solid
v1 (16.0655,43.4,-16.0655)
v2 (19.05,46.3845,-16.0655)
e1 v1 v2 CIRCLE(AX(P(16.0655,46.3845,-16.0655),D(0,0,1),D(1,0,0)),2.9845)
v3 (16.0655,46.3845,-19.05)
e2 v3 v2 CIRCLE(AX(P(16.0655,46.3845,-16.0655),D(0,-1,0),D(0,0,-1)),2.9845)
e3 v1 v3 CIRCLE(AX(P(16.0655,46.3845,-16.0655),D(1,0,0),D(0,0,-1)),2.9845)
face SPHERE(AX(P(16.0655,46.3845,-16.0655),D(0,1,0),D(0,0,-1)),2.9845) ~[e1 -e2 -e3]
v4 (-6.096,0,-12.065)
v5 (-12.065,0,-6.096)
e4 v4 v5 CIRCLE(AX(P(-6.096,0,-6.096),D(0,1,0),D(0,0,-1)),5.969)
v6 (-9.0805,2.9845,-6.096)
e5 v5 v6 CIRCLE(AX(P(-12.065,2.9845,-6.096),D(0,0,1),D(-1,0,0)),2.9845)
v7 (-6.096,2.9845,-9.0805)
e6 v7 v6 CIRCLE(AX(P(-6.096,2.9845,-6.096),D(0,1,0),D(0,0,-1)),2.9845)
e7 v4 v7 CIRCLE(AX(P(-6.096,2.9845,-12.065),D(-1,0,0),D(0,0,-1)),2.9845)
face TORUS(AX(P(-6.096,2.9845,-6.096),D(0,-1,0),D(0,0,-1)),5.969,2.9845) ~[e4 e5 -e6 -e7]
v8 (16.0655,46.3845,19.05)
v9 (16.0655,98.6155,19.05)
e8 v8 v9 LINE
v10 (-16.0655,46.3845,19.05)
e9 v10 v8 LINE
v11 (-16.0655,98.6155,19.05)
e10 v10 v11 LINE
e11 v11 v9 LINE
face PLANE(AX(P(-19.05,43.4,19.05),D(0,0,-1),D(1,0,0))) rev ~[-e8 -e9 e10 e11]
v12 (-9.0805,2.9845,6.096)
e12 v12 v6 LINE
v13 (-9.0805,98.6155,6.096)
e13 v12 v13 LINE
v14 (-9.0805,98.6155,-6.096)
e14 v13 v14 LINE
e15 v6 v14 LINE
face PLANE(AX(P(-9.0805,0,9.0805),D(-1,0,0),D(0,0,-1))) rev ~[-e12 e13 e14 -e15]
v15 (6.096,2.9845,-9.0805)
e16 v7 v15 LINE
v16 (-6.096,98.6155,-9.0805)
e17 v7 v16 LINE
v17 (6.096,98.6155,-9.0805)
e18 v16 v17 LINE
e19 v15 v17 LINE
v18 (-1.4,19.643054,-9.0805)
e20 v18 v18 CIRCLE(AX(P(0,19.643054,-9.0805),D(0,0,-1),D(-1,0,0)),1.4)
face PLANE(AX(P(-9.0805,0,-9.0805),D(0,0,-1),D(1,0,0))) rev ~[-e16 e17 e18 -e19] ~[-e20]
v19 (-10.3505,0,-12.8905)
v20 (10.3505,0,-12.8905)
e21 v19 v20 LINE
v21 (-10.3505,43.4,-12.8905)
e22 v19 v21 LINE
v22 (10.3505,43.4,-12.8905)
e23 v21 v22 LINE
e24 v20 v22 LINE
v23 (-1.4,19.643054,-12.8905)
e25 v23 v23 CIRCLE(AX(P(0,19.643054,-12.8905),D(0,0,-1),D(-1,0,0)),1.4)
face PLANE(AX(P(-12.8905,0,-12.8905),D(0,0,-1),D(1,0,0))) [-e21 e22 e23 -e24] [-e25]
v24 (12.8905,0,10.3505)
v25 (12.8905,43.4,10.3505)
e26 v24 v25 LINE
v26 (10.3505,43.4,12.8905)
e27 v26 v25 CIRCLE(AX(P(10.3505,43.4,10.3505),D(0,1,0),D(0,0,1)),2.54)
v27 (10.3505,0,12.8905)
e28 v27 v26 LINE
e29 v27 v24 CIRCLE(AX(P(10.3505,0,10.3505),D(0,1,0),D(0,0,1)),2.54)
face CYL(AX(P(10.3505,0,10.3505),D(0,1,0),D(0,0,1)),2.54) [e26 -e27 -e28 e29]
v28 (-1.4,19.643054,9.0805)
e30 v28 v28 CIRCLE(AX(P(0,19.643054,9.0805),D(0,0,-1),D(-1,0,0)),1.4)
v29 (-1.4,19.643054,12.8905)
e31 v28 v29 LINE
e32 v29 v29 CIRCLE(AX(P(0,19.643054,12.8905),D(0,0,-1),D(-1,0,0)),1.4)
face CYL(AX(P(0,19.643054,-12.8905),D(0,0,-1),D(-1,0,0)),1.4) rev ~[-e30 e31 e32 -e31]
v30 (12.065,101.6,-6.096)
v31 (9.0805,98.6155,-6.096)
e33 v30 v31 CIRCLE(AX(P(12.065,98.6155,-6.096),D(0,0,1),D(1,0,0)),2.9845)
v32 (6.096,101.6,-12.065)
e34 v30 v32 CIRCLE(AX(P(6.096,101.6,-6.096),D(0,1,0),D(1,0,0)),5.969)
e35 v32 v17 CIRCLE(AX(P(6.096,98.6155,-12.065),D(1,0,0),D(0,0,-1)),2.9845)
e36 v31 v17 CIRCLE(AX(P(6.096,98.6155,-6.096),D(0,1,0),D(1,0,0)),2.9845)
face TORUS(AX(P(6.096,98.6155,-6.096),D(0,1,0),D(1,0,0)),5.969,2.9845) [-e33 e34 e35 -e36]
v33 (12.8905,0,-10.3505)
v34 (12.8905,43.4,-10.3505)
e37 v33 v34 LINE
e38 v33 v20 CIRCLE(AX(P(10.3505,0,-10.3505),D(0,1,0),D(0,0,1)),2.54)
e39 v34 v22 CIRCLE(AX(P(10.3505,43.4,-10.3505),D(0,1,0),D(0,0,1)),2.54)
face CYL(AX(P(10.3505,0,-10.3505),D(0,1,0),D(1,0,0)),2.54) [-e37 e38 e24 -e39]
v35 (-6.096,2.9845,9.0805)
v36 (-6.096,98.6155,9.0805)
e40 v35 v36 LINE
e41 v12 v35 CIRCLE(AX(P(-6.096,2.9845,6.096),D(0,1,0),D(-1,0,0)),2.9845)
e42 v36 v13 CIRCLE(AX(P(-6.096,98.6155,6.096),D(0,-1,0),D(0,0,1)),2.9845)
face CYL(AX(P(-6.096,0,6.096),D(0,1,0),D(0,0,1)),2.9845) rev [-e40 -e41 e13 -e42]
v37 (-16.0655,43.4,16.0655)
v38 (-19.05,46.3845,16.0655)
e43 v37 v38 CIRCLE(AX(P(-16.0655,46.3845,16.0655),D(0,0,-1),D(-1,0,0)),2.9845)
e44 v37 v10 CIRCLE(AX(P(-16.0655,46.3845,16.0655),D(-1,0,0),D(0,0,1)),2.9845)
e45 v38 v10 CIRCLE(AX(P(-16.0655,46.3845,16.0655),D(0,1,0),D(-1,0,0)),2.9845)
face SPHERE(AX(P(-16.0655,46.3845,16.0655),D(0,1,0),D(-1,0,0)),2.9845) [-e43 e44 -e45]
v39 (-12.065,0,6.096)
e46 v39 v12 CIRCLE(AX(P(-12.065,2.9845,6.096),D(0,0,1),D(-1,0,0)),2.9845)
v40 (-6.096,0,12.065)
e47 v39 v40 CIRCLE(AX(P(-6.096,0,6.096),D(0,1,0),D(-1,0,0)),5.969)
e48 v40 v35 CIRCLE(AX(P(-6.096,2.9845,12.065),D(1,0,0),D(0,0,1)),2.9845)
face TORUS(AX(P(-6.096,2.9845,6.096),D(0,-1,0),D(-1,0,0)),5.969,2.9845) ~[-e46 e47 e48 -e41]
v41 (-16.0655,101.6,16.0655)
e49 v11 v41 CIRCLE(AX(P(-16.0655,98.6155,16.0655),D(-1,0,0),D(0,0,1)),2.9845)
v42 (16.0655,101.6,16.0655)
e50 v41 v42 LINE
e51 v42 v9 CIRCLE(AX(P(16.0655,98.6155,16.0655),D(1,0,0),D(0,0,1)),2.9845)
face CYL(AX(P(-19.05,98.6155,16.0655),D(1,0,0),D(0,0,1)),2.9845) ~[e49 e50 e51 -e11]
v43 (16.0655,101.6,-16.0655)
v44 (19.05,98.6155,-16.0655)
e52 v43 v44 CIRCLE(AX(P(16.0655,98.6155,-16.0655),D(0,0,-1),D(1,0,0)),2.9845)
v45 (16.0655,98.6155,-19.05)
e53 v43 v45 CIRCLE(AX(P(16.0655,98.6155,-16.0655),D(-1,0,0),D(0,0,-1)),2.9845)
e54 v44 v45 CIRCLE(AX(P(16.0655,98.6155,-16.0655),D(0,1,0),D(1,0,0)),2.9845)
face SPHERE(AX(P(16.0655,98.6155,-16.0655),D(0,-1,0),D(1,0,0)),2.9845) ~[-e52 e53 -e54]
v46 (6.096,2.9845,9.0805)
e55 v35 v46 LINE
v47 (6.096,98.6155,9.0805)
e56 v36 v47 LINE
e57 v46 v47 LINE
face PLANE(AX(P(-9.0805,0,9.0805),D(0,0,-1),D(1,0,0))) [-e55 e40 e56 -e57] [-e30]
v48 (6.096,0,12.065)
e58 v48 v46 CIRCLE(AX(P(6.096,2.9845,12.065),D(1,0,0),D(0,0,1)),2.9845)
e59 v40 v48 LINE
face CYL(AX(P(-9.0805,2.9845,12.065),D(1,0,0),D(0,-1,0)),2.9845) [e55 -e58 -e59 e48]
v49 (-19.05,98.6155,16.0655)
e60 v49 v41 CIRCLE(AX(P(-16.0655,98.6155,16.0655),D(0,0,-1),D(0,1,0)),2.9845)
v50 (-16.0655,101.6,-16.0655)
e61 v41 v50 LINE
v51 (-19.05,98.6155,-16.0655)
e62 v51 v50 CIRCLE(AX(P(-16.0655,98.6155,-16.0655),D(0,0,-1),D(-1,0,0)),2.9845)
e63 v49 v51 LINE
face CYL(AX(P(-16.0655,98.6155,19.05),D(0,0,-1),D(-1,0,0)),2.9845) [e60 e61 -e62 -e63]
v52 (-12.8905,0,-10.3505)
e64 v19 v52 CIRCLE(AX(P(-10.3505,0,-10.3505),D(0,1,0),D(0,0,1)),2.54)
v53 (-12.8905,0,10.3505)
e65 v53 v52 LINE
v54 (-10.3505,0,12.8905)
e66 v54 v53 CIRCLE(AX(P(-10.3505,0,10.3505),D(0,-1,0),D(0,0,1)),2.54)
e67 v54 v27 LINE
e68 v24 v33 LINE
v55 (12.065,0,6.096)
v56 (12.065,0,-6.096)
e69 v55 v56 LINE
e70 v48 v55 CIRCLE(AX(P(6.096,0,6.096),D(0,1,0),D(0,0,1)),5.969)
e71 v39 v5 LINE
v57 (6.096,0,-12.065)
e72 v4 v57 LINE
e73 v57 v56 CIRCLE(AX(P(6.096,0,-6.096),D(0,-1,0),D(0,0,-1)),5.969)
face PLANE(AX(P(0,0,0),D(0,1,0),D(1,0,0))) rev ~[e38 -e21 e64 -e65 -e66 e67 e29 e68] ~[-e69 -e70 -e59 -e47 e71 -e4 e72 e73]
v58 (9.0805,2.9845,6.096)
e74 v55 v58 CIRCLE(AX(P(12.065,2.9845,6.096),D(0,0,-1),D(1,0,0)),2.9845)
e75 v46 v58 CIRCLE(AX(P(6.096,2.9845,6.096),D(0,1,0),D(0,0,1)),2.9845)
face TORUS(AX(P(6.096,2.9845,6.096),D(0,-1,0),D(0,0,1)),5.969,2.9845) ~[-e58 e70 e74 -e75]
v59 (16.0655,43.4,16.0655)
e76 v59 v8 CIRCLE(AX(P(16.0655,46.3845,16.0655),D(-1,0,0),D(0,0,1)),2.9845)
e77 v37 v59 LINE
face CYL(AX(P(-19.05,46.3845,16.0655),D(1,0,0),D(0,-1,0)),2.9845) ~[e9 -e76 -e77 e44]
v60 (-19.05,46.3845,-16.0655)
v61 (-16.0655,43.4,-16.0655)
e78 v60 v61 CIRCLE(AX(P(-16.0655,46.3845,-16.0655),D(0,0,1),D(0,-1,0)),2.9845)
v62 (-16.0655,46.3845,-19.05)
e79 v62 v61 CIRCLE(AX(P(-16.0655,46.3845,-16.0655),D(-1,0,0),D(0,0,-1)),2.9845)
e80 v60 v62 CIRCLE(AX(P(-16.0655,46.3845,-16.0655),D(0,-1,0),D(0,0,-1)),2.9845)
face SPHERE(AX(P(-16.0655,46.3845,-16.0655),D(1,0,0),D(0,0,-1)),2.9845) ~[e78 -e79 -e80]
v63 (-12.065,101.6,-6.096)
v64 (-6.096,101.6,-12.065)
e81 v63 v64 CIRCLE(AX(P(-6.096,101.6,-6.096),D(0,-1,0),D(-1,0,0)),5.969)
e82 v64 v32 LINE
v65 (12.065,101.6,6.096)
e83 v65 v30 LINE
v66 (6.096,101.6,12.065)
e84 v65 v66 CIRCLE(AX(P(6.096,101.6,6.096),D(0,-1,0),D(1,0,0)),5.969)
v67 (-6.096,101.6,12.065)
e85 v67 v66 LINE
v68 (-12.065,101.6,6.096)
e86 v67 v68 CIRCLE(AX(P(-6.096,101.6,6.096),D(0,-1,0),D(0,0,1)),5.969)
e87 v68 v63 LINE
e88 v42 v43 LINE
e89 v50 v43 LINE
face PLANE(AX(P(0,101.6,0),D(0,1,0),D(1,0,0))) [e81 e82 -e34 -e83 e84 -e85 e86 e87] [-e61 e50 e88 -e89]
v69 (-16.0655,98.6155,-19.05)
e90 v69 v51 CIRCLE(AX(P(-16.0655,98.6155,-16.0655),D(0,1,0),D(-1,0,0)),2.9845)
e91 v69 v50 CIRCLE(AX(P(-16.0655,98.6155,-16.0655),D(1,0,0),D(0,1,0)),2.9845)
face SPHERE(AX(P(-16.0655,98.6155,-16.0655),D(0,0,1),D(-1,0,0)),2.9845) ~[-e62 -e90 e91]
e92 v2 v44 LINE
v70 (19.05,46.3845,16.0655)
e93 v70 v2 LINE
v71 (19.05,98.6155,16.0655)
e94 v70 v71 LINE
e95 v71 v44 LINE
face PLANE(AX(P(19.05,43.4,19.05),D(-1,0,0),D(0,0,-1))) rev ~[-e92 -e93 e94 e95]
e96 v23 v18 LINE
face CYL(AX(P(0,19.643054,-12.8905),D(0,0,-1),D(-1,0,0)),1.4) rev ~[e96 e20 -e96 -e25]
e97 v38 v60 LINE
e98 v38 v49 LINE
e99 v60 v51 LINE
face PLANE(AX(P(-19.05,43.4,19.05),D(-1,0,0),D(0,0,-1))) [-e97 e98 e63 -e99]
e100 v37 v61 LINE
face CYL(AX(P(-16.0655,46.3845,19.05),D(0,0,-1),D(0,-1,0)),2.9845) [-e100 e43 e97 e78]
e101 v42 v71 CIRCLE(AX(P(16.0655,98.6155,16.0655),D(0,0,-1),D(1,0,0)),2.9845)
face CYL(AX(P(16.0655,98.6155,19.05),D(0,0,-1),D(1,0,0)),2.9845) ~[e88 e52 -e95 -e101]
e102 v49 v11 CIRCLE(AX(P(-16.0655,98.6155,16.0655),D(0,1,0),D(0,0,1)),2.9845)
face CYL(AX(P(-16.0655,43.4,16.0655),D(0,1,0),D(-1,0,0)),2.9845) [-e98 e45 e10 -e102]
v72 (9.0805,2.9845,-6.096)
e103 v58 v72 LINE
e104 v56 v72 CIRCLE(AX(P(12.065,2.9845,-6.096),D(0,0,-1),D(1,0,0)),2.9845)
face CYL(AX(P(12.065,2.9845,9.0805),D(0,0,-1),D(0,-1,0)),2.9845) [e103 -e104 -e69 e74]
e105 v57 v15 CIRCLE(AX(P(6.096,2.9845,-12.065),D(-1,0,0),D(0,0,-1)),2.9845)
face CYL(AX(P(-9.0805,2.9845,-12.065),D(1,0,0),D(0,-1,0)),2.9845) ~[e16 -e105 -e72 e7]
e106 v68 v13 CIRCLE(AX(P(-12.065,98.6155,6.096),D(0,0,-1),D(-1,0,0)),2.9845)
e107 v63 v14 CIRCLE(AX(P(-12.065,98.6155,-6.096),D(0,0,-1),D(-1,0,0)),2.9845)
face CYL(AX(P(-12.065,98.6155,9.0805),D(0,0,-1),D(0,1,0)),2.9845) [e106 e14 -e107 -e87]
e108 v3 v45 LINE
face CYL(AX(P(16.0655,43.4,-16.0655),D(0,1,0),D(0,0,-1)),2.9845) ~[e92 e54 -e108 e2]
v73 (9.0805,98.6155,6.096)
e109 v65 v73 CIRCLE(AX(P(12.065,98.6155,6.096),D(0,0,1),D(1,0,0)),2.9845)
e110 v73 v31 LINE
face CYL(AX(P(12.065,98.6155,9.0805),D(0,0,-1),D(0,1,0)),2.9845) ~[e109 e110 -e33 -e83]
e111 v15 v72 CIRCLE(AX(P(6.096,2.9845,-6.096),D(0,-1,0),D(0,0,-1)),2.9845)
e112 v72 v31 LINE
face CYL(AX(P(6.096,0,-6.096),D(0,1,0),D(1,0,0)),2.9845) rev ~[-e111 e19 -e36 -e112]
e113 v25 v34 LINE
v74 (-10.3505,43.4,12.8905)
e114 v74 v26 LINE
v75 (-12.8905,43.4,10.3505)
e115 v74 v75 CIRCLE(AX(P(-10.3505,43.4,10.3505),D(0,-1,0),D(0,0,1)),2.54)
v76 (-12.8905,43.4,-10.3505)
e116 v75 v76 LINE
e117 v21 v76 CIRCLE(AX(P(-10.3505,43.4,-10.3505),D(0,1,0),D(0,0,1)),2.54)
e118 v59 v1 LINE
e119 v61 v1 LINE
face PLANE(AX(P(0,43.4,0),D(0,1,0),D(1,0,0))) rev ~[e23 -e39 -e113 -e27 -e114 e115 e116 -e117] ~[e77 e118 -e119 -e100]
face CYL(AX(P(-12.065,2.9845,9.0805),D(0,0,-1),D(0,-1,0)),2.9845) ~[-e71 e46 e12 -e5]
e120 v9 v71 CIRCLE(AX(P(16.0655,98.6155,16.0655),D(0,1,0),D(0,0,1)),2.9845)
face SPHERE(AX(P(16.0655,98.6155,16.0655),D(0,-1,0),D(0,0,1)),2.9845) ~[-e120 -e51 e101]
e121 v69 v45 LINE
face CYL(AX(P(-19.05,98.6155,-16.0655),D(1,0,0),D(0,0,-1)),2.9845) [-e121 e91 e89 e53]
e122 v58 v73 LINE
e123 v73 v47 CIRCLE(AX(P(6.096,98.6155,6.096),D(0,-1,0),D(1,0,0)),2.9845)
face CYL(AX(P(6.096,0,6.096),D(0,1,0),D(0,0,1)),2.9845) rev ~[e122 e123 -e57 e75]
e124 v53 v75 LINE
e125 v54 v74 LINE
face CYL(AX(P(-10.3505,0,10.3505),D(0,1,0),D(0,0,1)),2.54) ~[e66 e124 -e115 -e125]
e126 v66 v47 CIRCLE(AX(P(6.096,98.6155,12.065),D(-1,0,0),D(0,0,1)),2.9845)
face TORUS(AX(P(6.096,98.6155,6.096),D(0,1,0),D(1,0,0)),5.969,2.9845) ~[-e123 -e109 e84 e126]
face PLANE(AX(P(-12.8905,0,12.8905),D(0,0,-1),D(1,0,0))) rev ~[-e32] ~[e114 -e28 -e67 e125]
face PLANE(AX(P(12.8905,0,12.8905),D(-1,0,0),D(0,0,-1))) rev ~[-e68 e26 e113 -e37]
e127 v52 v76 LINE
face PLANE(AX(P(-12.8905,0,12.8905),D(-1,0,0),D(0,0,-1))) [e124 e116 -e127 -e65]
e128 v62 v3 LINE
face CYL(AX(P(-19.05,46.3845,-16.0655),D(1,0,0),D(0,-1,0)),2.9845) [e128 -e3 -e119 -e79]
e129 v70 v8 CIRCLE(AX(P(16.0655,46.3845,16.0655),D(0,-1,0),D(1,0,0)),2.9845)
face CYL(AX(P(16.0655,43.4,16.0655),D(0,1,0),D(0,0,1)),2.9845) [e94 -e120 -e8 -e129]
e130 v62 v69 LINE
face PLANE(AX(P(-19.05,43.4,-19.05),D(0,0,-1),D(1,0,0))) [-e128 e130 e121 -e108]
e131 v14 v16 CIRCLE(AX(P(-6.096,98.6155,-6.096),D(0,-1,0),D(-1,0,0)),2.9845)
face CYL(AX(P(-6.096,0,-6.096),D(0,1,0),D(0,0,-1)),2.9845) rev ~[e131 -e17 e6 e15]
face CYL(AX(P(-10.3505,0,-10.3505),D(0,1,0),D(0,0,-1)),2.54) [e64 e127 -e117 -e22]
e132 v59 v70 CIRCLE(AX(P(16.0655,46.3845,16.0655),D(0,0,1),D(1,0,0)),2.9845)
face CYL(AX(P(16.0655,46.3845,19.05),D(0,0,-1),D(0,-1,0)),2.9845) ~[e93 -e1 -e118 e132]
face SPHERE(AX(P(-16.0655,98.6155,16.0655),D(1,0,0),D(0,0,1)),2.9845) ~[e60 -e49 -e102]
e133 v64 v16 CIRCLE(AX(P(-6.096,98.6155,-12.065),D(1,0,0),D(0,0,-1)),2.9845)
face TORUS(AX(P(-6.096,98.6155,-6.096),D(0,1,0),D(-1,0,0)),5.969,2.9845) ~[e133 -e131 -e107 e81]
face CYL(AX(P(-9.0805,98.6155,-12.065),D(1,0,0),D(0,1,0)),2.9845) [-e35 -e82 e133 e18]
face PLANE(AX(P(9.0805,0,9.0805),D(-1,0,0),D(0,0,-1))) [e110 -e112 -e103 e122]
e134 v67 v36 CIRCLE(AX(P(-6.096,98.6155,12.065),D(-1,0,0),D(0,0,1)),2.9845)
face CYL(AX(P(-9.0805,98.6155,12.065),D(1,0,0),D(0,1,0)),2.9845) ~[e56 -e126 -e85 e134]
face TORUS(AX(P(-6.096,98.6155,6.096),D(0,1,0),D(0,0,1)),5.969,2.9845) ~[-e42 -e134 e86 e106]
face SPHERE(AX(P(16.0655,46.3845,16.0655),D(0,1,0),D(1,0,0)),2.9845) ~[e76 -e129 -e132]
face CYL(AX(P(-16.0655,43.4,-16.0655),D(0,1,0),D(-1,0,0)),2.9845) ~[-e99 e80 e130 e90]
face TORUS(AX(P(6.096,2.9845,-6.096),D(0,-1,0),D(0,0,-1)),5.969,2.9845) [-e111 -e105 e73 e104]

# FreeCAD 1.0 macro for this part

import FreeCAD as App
import Part
import Sketcher
Q = App.Units.Quantity


def edges_at(feature, points):
    """Names of the edges that pass closest to the given points."""
    edges = feature.Shape.Edges
    near = lambda p: min(range(len(edges)), key=lambda i: edges[i].distToShape(Part.Vertex(*p))[0])
    return sorted({f"Edge{near(p) + 1}" for p in points})

doc = App.newDocument("Part")
body = doc.addObject("PartDesign::Body", "Body")

# Sketch on XZ plane
sketch1 = doc.addObject("Sketcher::SketchObject", "Sketch")
body.addObject(sketch1)
sketch1.AttachmentSupport = (doc.XZ_Plane, [""])
sketch1.MapMode = "FlatFace"
sketch1.addGeometry(Part.LineSegment(App.Vector(-13, -13, 0), App.Vector(-13, 13, 0)), False)
sketch1.addGeometry(Part.LineSegment(App.Vector(-13, 13, 0), App.Vector(13, 13, 0)), False)
sketch1.addGeometry(Part.LineSegment(App.Vector(13, 13, 0), App.Vector(13, -13, 0)), False)
sketch1.addGeometry(Part.LineSegment(App.Vector(13, -13, 0), App.Vector(-13, -13, 0)), False)
sketch1.addGeometry(Part.LineSegment(App.Vector(9, 9, 0), App.Vector(-9, 9, 0)), False)
sketch1.addGeometry(Part.LineSegment(App.Vector(-9, 9, 0), App.Vector(-9, -9, 0)), False)
sketch1.addGeometry(Part.LineSegment(App.Vector(-9, -9, 0), App.Vector(9, -9, 0)), False)
sketch1.addGeometry(Part.LineSegment(App.Vector(9, -9, 0), App.Vector(9, 9, 0)), False)
sketch1.addConstraint(Sketcher.Constraint("Coincident", 0, 2, 1, 1))
sketch1.addConstraint(Sketcher.Constraint("Coincident", 1, 2, 2, 1))
sketch1.addConstraint(Sketcher.Constraint("Coincident", 2, 2, 3, 1))
sketch1.addConstraint(Sketcher.Constraint("Coincident", 3, 2, 0, 1))
sketch1.addConstraint(Sketcher.Constraint("Coincident", 4, 2, 5, 1))
sketch1.addConstraint(Sketcher.Constraint("Coincident", 5, 2, 6, 1))
sketch1.addConstraint(Sketcher.Constraint("Coincident", 6, 2, 7, 1))
sketch1.addConstraint(Sketcher.Constraint("Coincident", 7, 2, 4, 1))
sketch1.addConstraint(Sketcher.Constraint("Vertical", 0))
sketch1.addConstraint(Sketcher.Constraint("Horizontal", 1))
sketch1.addConstraint(Sketcher.Constraint("Vertical", 2))
sketch1.addConstraint(Sketcher.Constraint("Horizontal", 3))
sketch1.addConstraint(Sketcher.Constraint("Horizontal", 4))
sketch1.addConstraint(Sketcher.Constraint("Vertical", 5))
sketch1.addConstraint(Sketcher.Constraint("Horizontal", 6))
sketch1.addConstraint(Sketcher.Constraint("Vertical", 7))
sketch1.addConstraint(Sketcher.Constraint("Symmetric", 0, 2, 2, 2, -1, 1))
sketch1.addConstraint(Sketcher.Constraint("Symmetric", 4, 2, 6, 2, -1, 1))
sketch1.addConstraint(Sketcher.Constraint("Equal", 3, 0))
sketch1.addConstraint(Sketcher.Constraint("Equal", 6, 5))
sketch1.addConstraint(Sketcher.Constraint("DistanceX", 1, 1, 1, 2, Q("1.015 in")))
sketch1.addConstraint(Sketcher.Constraint("DistanceX", 4, 2, 4, 1, Q("0.715 in")))
pad1 = doc.addObject("PartDesign::Pad", "Pad")
body.addObject(pad1)
pad1.Profile = sketch1
pad1.Length = Q("4 in")
pad1.Reversed = True

# Sketch on XZ plane
sketch2 = doc.addObject("Sketcher::SketchObject", "Sketch001")
body.addObject(sketch2)
sketch2.AttachmentSupport = (doc.XZ_Plane, [""])
sketch2.MapMode = "FlatFace"
sketch2.AttachmentOffset = App.Placement(App.Vector(0, 0, -43.4), App.Rotation())
sketch2.addGeometry(Part.LineSegment(App.Vector(-19, -19, 0), App.Vector(-19, 19, 0)), False)
sketch2.addGeometry(Part.LineSegment(App.Vector(-19, 19, 0), App.Vector(19, 19, 0)), False)
sketch2.addGeometry(Part.LineSegment(App.Vector(19, 19, 0), App.Vector(19, -19, 0)), False)
sketch2.addGeometry(Part.LineSegment(App.Vector(19, -19, 0), App.Vector(-19, -19, 0)), False)
sketch2.addGeometry(Part.LineSegment(App.Vector(13, 13, 0), App.Vector(-13, 13, 0)), False)
sketch2.addGeometry(Part.LineSegment(App.Vector(-13, 13, 0), App.Vector(-13, -13, 0)), False)
sketch2.addGeometry(Part.LineSegment(App.Vector(-13, -13, 0), App.Vector(13, -13, 0)), False)
sketch2.addGeometry(Part.LineSegment(App.Vector(13, -13, 0), App.Vector(13, 13, 0)), False)
sketch2.addConstraint(Sketcher.Constraint("Coincident", 0, 2, 1, 1))
sketch2.addConstraint(Sketcher.Constraint("Coincident", 1, 2, 2, 1))
sketch2.addConstraint(Sketcher.Constraint("Coincident", 2, 2, 3, 1))
sketch2.addConstraint(Sketcher.Constraint("Coincident", 3, 2, 0, 1))
sketch2.addConstraint(Sketcher.Constraint("Coincident", 4, 2, 5, 1))
sketch2.addConstraint(Sketcher.Constraint("Coincident", 5, 2, 6, 1))
sketch2.addConstraint(Sketcher.Constraint("Coincident", 6, 2, 7, 1))
sketch2.addConstraint(Sketcher.Constraint("Coincident", 7, 2, 4, 1))
sketch2.addConstraint(Sketcher.Constraint("Vertical", 0))
sketch2.addConstraint(Sketcher.Constraint("Horizontal", 1))
sketch2.addConstraint(Sketcher.Constraint("Vertical", 2))
sketch2.addConstraint(Sketcher.Constraint("Horizontal", 3))
sketch2.addConstraint(Sketcher.Constraint("Horizontal", 4))
sketch2.addConstraint(Sketcher.Constraint("Vertical", 5))
sketch2.addConstraint(Sketcher.Constraint("Horizontal", 6))
sketch2.addConstraint(Sketcher.Constraint("Vertical", 7))
sketch2.addConstraint(Sketcher.Constraint("Symmetric", 0, 2, 2, 2, -1, 1))
sketch2.addConstraint(Sketcher.Constraint("Symmetric", 4, 2, 6, 2, -1, 1))
sketch2.addConstraint(Sketcher.Constraint("Equal", 3, 0))
sketch2.addConstraint(Sketcher.Constraint("Equal", 6, 5))
sketch2.addConstraint(Sketcher.Constraint("DistanceX", 1, 1, 1, 2, Q("1.5 in")))
sketch2.addConstraint(Sketcher.Constraint("DistanceX", 4, 2, 4, 1, Q("1.015 in")))
pad2 = doc.addObject("PartDesign::Pad", "Pad001")
body.addObject(pad2)
pad2.Profile = sketch2
pad2.Length = 58.2
pad2.Reversed = True
doc.recompute()

fillet = doc.addObject("PartDesign::Fillet", "Fillet")
body.addObject(fillet)
fillet.Base = (pad2, edges_at(pad2, [
    (-12.89, 21.7, -12.89),
    (12.89, 21.7, -12.89),
    (12.89, 21.7, 12.89),
    (-12.89, 21.7, 12.89),
]))
fillet.Radius = Q("0.1 in")
doc.recompute()

fillet2 = doc.addObject("PartDesign::Fillet", "Fillet001")
body.addObject(fillet2)
fillet2.Base = (fillet, edges_at(fillet, [
    (0, 0, 9.081),
    (9.081, 0, 0),
    (9.081, 50.8, -9.081),
    (-9.081, 50.8, -9.081),
    (-9.081, 50.8, 9.081),
    (9.081, 50.8, 9.081),
    (9.081, 101.6, 0),
    (0, 101.6, 9.081),
    (19.05, 72.5, -19.05),
    (0, 43.4, -19.05),
    (19.05, 72.5, 19.05),
    (19.05, 43.4, 0),
    (0, 101.6, 19.05),
    (-19.05, 72.5, 19.05),
    (-19.05, 101.6, 0),
    (-19.05, 72.5, -19.05),
    (-9.081, 101.6, 0),
    (-19.05, 43.4, 0),
    (0, 43.4, 19.05),
    (19.05, 101.6, 0),
    (0, 101.6, -19.05),
    (0, 101.6, -9.081),
    (0, 0, -9.081),
    (-9.081, 0, 0),
]))
fillet2.Radius = Q("0.1175 in")

# Sketch on XY plane
sketch3 = doc.addObject("Sketcher::SketchObject", "Sketch002")
body.addObject(sketch3)
sketch3.AttachmentSupport = (doc.XY_Plane, [""])
sketch3.MapMode = "FlatFace"
sketch3.AttachmentOffset = App.Placement(App.Vector(0, 0, -0.5075 * 25.4), App.Rotation())
sketch3.addGeometry(Part.Circle(App.Vector(0, 19.6, 0), App.Vector(0, 0, 1), 1.4), False)
sketch3.addConstraint(Sketcher.Constraint("PointOnObject", 0, 3, -2))
sketch3.addConstraint(Sketcher.Constraint("Diameter", 0, 2.8))
sketch3.addConstraint(Sketcher.Constraint("DistanceY", -1, 1, 0, 3, 19.643054))
pocket1 = doc.addObject("PartDesign::Pocket", "Pocket")
body.addObject(pocket1)
pocket1.Profile = sketch3
pocket1.Length = Q("1.48 in")
pocket1.Reversed = True

doc.recompute()
